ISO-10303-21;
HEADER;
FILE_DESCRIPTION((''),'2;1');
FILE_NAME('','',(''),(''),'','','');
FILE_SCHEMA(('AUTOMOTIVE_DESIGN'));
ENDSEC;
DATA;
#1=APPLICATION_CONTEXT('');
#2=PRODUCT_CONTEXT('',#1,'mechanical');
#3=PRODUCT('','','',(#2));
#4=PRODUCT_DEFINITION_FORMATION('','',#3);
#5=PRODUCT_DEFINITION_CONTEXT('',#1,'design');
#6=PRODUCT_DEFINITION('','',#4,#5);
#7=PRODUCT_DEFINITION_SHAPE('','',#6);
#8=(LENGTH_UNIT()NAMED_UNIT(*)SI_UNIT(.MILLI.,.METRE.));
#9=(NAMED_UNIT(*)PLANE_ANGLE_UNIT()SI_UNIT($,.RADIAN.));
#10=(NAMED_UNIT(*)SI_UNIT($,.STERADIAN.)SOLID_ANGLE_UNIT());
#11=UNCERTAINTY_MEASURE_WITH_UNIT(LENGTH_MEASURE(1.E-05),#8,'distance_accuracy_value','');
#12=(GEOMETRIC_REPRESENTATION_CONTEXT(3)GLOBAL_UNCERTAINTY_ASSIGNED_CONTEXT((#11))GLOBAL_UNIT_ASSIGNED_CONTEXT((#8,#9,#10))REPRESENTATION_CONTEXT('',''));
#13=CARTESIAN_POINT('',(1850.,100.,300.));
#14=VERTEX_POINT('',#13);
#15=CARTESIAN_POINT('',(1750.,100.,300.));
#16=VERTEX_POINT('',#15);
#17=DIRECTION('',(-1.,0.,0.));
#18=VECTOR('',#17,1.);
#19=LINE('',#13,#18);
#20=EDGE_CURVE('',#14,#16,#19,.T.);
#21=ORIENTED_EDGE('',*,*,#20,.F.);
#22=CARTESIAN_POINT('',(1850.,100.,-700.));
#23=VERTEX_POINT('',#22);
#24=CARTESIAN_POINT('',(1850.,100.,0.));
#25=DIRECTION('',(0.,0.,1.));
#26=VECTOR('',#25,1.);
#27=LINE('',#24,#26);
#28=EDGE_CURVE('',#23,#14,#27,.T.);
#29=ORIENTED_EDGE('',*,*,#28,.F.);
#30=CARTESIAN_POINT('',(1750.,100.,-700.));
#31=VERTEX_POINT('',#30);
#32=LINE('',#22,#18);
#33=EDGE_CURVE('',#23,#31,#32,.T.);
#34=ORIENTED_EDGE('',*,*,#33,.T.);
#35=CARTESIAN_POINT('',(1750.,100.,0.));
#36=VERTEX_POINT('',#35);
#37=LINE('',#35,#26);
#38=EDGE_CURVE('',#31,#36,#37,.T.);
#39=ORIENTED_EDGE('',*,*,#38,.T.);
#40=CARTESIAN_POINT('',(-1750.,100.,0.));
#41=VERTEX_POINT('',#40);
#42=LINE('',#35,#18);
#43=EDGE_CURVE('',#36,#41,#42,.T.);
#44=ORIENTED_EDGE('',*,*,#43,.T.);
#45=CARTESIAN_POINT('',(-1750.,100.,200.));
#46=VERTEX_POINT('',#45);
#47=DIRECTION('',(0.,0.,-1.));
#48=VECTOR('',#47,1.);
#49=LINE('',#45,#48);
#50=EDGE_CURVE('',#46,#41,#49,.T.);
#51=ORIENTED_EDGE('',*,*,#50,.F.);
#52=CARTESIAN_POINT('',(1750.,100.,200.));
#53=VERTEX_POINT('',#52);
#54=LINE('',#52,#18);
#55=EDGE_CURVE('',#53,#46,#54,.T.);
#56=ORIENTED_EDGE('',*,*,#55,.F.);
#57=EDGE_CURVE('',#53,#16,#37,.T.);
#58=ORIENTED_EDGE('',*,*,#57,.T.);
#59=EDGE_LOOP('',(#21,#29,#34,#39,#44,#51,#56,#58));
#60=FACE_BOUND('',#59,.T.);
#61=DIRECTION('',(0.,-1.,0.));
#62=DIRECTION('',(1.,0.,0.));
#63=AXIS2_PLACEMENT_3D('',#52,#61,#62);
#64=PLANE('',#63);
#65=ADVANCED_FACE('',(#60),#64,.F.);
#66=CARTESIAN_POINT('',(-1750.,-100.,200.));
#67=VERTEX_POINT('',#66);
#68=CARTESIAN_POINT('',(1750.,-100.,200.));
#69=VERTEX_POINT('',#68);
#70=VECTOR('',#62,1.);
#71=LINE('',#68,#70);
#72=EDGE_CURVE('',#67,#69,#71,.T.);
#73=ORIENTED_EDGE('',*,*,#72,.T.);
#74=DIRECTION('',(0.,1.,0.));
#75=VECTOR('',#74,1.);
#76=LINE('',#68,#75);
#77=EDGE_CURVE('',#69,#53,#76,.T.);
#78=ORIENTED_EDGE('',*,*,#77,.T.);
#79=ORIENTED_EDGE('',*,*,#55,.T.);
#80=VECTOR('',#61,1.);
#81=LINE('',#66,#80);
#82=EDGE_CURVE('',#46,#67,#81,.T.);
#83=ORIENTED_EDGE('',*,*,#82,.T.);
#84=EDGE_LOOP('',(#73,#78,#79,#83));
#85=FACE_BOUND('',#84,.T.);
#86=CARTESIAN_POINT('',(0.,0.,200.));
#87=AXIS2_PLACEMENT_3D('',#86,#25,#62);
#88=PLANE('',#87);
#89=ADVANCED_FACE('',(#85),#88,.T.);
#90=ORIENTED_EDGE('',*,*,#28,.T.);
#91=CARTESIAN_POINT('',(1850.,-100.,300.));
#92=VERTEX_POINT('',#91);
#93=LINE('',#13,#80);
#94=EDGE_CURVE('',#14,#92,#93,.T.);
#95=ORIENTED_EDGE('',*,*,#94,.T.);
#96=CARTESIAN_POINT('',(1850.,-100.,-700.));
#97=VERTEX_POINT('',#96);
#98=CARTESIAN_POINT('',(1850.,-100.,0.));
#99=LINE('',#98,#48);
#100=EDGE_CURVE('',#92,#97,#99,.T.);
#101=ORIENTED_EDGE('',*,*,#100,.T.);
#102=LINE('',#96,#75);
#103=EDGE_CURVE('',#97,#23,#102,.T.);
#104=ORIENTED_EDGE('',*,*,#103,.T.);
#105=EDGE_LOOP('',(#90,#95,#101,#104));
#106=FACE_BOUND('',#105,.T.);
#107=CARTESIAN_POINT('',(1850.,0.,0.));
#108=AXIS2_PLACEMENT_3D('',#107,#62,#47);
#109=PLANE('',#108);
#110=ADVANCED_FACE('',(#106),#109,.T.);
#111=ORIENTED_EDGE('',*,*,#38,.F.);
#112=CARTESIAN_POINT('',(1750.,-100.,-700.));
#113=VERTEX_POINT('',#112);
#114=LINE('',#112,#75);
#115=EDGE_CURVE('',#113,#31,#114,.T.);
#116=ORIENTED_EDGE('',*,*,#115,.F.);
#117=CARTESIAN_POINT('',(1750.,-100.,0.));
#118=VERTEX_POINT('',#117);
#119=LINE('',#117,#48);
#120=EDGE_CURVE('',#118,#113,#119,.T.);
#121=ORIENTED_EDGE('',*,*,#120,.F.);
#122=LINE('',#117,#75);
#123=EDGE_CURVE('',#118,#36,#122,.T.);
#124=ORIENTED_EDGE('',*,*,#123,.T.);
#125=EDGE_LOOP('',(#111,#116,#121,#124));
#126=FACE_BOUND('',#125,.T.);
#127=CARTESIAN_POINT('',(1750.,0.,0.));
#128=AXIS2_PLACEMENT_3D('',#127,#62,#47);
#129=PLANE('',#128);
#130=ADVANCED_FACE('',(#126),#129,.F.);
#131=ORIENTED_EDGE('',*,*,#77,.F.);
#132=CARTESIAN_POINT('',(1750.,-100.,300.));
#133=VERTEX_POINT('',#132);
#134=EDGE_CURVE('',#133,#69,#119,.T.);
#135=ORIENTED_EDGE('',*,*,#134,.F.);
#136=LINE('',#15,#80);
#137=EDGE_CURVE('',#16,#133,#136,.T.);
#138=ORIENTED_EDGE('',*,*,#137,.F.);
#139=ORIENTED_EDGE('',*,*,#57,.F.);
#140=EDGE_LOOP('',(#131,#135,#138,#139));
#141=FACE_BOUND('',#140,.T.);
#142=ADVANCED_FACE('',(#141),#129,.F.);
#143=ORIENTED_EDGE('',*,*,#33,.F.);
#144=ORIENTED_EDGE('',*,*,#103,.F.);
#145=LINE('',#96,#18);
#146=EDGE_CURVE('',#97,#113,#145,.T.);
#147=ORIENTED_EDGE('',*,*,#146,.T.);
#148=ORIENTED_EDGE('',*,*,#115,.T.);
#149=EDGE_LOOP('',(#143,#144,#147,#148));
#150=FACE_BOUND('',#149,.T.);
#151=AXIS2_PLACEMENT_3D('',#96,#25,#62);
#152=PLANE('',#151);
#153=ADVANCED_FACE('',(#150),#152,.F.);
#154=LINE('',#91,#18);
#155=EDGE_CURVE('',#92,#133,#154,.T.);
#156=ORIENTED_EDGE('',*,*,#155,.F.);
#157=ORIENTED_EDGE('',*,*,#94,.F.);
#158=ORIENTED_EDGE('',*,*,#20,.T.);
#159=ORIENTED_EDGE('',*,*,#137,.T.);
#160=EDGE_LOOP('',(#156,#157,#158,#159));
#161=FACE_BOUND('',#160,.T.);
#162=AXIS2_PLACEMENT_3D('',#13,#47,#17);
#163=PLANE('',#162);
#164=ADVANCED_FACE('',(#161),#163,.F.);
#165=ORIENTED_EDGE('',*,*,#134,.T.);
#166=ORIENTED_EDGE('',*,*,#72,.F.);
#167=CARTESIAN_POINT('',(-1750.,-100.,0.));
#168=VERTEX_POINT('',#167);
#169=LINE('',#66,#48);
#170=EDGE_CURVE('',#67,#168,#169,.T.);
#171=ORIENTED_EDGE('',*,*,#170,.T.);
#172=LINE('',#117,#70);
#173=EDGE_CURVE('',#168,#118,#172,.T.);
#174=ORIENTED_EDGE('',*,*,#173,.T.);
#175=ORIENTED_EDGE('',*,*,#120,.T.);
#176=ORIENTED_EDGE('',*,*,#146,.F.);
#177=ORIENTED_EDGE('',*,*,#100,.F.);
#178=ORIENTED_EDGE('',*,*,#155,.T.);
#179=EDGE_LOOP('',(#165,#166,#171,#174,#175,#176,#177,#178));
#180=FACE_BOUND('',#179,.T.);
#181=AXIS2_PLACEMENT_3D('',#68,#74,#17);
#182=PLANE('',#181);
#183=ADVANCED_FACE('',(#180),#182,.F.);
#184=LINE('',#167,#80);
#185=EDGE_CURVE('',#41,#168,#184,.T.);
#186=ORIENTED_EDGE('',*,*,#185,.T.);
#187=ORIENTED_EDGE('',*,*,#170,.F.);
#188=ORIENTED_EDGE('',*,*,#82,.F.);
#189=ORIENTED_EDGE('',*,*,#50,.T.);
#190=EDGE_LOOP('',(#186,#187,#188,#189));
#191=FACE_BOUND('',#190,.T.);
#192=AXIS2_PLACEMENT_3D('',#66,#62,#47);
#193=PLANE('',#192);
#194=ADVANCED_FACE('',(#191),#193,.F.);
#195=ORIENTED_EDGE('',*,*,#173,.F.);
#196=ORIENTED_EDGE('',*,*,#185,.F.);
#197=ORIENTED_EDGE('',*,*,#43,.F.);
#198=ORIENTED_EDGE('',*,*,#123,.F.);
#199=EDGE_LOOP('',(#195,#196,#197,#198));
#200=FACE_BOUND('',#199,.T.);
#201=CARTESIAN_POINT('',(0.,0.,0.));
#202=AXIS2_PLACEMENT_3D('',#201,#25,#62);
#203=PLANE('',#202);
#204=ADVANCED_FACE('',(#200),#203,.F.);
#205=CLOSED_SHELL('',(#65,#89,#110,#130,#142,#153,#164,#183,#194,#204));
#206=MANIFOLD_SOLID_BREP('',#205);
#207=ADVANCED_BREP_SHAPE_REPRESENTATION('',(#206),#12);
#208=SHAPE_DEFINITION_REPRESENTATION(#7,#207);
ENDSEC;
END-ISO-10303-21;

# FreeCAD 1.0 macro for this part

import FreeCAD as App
import Part
import Sketcher

V = App.Vector


def add_polygon(sketch, points):
    """Adds a closed chain of lines whose ends are joined by coincident constraints."""
    first, n = sketch.GeometryCount, len(points)
    for a, b in zip(points, points[1:] + points[:1]):
        sketch.addGeometry(Part.LineSegment(App.Vector(*a, 0), App.Vector(*b, 0)), False)
    for i in range(n):
        sketch.addConstraint(Sketcher.Constraint("Coincident", first + i, 2, first + (i + 1) % n, 1))

doc = App.newDocument("Part")
params = doc.addObject("Spreadsheet::Sheet", "Params")
for row, (alias, value) in enumerate([
    ("sketch1_width", "3500 mm"),
    ("sketch1_height", "200 mm"),
    ("pad1_length", "200 mm"),
    ("sketch2_width", "200 mm"),
    ("sketch2_height", "1000 mm"),
    ("pad2_length", "100 mm"),
], start=1):
    params.set(f"A{row}", alias)
    params.set(f"B{row}", "=" + value)
    params.setAlias(f"B{row}", alias)

body = doc.addObject("PartDesign::Body", "Body")

sketch1 = body.newObject("Sketcher::SketchObject", "Sketch")
sketch1.AttachmentSupport = (doc.getObject("XY_Plane"), [""])
sketch1.MapMode = "FlatFace"
add_polygon(sketch1, [(-1750, 100), (-1750, -100), (1750, -100), (1750, 100)])
sketch1.addConstraint([
    Sketcher.Constraint("Vertical", 0),
    Sketcher.Constraint("Horizontal", 1),
    Sketcher.Constraint("Vertical", 2),
    Sketcher.Constraint("Horizontal", 3),
    Sketcher.Constraint("Symmetric", 0, 2, 2, 2, -1, 1),
    Sketcher.Constraint("DistanceX", 1, 1, 1, 2, 3500.0),
    Sketcher.Constraint("DistanceY", 0, 2, 0, 1, 200.0),
])
sketch1.setExpression("Constraints[9]", "Params.sketch1_width")
sketch1.setExpression("Constraints[10]", "Params.sketch1_height")
pad1 = body.newObject("PartDesign::Pad", "Pad")
pad1.Profile = sketch1
pad1.setExpression("Length", "Params.pad1_length")

sketch2 = body.newObject("Sketcher::SketchObject", "Sketch001")
sketch2.AttachmentSupport = (doc.getObject("YZ_Plane"), [""])
sketch2.MapMode = "FlatFace"
sketch2.AttachmentOffset = App.Placement(V(0, 0, 1750), App.Rotation())
add_polygon(sketch2, [(100, 300), (-100, 300), (-100, -700), (100, -700)])
sketch2.addConstraint([
    Sketcher.Constraint("Horizontal", 0),
    Sketcher.Constraint("Vertical", 1),
    Sketcher.Constraint("Horizontal", 2),
    Sketcher.Constraint("Vertical", 3),
    Sketcher.Constraint("DistanceX", 0, 2, 0, 1, 200.0),
    Sketcher.Constraint("DistanceY", 1, 2, 1, 1, 1000.0),
    Sketcher.Constraint("DistanceX", 0, 2, -1, 1, 100.0),
    Sketcher.Constraint("DistanceY", -1, 1, 0, 2, 300.0),
])
sketch2.setExpression("Constraints[8]", "Params.sketch2_width")
sketch2.setExpression("Constraints[9]", "Params.sketch2_height")
pad2 = body.newObject("PartDesign::Pad", "Pad001")
pad2.Profile = sketch2
pad2.setExpression("Length", "Params.pad2_length")

doc.recompute()
